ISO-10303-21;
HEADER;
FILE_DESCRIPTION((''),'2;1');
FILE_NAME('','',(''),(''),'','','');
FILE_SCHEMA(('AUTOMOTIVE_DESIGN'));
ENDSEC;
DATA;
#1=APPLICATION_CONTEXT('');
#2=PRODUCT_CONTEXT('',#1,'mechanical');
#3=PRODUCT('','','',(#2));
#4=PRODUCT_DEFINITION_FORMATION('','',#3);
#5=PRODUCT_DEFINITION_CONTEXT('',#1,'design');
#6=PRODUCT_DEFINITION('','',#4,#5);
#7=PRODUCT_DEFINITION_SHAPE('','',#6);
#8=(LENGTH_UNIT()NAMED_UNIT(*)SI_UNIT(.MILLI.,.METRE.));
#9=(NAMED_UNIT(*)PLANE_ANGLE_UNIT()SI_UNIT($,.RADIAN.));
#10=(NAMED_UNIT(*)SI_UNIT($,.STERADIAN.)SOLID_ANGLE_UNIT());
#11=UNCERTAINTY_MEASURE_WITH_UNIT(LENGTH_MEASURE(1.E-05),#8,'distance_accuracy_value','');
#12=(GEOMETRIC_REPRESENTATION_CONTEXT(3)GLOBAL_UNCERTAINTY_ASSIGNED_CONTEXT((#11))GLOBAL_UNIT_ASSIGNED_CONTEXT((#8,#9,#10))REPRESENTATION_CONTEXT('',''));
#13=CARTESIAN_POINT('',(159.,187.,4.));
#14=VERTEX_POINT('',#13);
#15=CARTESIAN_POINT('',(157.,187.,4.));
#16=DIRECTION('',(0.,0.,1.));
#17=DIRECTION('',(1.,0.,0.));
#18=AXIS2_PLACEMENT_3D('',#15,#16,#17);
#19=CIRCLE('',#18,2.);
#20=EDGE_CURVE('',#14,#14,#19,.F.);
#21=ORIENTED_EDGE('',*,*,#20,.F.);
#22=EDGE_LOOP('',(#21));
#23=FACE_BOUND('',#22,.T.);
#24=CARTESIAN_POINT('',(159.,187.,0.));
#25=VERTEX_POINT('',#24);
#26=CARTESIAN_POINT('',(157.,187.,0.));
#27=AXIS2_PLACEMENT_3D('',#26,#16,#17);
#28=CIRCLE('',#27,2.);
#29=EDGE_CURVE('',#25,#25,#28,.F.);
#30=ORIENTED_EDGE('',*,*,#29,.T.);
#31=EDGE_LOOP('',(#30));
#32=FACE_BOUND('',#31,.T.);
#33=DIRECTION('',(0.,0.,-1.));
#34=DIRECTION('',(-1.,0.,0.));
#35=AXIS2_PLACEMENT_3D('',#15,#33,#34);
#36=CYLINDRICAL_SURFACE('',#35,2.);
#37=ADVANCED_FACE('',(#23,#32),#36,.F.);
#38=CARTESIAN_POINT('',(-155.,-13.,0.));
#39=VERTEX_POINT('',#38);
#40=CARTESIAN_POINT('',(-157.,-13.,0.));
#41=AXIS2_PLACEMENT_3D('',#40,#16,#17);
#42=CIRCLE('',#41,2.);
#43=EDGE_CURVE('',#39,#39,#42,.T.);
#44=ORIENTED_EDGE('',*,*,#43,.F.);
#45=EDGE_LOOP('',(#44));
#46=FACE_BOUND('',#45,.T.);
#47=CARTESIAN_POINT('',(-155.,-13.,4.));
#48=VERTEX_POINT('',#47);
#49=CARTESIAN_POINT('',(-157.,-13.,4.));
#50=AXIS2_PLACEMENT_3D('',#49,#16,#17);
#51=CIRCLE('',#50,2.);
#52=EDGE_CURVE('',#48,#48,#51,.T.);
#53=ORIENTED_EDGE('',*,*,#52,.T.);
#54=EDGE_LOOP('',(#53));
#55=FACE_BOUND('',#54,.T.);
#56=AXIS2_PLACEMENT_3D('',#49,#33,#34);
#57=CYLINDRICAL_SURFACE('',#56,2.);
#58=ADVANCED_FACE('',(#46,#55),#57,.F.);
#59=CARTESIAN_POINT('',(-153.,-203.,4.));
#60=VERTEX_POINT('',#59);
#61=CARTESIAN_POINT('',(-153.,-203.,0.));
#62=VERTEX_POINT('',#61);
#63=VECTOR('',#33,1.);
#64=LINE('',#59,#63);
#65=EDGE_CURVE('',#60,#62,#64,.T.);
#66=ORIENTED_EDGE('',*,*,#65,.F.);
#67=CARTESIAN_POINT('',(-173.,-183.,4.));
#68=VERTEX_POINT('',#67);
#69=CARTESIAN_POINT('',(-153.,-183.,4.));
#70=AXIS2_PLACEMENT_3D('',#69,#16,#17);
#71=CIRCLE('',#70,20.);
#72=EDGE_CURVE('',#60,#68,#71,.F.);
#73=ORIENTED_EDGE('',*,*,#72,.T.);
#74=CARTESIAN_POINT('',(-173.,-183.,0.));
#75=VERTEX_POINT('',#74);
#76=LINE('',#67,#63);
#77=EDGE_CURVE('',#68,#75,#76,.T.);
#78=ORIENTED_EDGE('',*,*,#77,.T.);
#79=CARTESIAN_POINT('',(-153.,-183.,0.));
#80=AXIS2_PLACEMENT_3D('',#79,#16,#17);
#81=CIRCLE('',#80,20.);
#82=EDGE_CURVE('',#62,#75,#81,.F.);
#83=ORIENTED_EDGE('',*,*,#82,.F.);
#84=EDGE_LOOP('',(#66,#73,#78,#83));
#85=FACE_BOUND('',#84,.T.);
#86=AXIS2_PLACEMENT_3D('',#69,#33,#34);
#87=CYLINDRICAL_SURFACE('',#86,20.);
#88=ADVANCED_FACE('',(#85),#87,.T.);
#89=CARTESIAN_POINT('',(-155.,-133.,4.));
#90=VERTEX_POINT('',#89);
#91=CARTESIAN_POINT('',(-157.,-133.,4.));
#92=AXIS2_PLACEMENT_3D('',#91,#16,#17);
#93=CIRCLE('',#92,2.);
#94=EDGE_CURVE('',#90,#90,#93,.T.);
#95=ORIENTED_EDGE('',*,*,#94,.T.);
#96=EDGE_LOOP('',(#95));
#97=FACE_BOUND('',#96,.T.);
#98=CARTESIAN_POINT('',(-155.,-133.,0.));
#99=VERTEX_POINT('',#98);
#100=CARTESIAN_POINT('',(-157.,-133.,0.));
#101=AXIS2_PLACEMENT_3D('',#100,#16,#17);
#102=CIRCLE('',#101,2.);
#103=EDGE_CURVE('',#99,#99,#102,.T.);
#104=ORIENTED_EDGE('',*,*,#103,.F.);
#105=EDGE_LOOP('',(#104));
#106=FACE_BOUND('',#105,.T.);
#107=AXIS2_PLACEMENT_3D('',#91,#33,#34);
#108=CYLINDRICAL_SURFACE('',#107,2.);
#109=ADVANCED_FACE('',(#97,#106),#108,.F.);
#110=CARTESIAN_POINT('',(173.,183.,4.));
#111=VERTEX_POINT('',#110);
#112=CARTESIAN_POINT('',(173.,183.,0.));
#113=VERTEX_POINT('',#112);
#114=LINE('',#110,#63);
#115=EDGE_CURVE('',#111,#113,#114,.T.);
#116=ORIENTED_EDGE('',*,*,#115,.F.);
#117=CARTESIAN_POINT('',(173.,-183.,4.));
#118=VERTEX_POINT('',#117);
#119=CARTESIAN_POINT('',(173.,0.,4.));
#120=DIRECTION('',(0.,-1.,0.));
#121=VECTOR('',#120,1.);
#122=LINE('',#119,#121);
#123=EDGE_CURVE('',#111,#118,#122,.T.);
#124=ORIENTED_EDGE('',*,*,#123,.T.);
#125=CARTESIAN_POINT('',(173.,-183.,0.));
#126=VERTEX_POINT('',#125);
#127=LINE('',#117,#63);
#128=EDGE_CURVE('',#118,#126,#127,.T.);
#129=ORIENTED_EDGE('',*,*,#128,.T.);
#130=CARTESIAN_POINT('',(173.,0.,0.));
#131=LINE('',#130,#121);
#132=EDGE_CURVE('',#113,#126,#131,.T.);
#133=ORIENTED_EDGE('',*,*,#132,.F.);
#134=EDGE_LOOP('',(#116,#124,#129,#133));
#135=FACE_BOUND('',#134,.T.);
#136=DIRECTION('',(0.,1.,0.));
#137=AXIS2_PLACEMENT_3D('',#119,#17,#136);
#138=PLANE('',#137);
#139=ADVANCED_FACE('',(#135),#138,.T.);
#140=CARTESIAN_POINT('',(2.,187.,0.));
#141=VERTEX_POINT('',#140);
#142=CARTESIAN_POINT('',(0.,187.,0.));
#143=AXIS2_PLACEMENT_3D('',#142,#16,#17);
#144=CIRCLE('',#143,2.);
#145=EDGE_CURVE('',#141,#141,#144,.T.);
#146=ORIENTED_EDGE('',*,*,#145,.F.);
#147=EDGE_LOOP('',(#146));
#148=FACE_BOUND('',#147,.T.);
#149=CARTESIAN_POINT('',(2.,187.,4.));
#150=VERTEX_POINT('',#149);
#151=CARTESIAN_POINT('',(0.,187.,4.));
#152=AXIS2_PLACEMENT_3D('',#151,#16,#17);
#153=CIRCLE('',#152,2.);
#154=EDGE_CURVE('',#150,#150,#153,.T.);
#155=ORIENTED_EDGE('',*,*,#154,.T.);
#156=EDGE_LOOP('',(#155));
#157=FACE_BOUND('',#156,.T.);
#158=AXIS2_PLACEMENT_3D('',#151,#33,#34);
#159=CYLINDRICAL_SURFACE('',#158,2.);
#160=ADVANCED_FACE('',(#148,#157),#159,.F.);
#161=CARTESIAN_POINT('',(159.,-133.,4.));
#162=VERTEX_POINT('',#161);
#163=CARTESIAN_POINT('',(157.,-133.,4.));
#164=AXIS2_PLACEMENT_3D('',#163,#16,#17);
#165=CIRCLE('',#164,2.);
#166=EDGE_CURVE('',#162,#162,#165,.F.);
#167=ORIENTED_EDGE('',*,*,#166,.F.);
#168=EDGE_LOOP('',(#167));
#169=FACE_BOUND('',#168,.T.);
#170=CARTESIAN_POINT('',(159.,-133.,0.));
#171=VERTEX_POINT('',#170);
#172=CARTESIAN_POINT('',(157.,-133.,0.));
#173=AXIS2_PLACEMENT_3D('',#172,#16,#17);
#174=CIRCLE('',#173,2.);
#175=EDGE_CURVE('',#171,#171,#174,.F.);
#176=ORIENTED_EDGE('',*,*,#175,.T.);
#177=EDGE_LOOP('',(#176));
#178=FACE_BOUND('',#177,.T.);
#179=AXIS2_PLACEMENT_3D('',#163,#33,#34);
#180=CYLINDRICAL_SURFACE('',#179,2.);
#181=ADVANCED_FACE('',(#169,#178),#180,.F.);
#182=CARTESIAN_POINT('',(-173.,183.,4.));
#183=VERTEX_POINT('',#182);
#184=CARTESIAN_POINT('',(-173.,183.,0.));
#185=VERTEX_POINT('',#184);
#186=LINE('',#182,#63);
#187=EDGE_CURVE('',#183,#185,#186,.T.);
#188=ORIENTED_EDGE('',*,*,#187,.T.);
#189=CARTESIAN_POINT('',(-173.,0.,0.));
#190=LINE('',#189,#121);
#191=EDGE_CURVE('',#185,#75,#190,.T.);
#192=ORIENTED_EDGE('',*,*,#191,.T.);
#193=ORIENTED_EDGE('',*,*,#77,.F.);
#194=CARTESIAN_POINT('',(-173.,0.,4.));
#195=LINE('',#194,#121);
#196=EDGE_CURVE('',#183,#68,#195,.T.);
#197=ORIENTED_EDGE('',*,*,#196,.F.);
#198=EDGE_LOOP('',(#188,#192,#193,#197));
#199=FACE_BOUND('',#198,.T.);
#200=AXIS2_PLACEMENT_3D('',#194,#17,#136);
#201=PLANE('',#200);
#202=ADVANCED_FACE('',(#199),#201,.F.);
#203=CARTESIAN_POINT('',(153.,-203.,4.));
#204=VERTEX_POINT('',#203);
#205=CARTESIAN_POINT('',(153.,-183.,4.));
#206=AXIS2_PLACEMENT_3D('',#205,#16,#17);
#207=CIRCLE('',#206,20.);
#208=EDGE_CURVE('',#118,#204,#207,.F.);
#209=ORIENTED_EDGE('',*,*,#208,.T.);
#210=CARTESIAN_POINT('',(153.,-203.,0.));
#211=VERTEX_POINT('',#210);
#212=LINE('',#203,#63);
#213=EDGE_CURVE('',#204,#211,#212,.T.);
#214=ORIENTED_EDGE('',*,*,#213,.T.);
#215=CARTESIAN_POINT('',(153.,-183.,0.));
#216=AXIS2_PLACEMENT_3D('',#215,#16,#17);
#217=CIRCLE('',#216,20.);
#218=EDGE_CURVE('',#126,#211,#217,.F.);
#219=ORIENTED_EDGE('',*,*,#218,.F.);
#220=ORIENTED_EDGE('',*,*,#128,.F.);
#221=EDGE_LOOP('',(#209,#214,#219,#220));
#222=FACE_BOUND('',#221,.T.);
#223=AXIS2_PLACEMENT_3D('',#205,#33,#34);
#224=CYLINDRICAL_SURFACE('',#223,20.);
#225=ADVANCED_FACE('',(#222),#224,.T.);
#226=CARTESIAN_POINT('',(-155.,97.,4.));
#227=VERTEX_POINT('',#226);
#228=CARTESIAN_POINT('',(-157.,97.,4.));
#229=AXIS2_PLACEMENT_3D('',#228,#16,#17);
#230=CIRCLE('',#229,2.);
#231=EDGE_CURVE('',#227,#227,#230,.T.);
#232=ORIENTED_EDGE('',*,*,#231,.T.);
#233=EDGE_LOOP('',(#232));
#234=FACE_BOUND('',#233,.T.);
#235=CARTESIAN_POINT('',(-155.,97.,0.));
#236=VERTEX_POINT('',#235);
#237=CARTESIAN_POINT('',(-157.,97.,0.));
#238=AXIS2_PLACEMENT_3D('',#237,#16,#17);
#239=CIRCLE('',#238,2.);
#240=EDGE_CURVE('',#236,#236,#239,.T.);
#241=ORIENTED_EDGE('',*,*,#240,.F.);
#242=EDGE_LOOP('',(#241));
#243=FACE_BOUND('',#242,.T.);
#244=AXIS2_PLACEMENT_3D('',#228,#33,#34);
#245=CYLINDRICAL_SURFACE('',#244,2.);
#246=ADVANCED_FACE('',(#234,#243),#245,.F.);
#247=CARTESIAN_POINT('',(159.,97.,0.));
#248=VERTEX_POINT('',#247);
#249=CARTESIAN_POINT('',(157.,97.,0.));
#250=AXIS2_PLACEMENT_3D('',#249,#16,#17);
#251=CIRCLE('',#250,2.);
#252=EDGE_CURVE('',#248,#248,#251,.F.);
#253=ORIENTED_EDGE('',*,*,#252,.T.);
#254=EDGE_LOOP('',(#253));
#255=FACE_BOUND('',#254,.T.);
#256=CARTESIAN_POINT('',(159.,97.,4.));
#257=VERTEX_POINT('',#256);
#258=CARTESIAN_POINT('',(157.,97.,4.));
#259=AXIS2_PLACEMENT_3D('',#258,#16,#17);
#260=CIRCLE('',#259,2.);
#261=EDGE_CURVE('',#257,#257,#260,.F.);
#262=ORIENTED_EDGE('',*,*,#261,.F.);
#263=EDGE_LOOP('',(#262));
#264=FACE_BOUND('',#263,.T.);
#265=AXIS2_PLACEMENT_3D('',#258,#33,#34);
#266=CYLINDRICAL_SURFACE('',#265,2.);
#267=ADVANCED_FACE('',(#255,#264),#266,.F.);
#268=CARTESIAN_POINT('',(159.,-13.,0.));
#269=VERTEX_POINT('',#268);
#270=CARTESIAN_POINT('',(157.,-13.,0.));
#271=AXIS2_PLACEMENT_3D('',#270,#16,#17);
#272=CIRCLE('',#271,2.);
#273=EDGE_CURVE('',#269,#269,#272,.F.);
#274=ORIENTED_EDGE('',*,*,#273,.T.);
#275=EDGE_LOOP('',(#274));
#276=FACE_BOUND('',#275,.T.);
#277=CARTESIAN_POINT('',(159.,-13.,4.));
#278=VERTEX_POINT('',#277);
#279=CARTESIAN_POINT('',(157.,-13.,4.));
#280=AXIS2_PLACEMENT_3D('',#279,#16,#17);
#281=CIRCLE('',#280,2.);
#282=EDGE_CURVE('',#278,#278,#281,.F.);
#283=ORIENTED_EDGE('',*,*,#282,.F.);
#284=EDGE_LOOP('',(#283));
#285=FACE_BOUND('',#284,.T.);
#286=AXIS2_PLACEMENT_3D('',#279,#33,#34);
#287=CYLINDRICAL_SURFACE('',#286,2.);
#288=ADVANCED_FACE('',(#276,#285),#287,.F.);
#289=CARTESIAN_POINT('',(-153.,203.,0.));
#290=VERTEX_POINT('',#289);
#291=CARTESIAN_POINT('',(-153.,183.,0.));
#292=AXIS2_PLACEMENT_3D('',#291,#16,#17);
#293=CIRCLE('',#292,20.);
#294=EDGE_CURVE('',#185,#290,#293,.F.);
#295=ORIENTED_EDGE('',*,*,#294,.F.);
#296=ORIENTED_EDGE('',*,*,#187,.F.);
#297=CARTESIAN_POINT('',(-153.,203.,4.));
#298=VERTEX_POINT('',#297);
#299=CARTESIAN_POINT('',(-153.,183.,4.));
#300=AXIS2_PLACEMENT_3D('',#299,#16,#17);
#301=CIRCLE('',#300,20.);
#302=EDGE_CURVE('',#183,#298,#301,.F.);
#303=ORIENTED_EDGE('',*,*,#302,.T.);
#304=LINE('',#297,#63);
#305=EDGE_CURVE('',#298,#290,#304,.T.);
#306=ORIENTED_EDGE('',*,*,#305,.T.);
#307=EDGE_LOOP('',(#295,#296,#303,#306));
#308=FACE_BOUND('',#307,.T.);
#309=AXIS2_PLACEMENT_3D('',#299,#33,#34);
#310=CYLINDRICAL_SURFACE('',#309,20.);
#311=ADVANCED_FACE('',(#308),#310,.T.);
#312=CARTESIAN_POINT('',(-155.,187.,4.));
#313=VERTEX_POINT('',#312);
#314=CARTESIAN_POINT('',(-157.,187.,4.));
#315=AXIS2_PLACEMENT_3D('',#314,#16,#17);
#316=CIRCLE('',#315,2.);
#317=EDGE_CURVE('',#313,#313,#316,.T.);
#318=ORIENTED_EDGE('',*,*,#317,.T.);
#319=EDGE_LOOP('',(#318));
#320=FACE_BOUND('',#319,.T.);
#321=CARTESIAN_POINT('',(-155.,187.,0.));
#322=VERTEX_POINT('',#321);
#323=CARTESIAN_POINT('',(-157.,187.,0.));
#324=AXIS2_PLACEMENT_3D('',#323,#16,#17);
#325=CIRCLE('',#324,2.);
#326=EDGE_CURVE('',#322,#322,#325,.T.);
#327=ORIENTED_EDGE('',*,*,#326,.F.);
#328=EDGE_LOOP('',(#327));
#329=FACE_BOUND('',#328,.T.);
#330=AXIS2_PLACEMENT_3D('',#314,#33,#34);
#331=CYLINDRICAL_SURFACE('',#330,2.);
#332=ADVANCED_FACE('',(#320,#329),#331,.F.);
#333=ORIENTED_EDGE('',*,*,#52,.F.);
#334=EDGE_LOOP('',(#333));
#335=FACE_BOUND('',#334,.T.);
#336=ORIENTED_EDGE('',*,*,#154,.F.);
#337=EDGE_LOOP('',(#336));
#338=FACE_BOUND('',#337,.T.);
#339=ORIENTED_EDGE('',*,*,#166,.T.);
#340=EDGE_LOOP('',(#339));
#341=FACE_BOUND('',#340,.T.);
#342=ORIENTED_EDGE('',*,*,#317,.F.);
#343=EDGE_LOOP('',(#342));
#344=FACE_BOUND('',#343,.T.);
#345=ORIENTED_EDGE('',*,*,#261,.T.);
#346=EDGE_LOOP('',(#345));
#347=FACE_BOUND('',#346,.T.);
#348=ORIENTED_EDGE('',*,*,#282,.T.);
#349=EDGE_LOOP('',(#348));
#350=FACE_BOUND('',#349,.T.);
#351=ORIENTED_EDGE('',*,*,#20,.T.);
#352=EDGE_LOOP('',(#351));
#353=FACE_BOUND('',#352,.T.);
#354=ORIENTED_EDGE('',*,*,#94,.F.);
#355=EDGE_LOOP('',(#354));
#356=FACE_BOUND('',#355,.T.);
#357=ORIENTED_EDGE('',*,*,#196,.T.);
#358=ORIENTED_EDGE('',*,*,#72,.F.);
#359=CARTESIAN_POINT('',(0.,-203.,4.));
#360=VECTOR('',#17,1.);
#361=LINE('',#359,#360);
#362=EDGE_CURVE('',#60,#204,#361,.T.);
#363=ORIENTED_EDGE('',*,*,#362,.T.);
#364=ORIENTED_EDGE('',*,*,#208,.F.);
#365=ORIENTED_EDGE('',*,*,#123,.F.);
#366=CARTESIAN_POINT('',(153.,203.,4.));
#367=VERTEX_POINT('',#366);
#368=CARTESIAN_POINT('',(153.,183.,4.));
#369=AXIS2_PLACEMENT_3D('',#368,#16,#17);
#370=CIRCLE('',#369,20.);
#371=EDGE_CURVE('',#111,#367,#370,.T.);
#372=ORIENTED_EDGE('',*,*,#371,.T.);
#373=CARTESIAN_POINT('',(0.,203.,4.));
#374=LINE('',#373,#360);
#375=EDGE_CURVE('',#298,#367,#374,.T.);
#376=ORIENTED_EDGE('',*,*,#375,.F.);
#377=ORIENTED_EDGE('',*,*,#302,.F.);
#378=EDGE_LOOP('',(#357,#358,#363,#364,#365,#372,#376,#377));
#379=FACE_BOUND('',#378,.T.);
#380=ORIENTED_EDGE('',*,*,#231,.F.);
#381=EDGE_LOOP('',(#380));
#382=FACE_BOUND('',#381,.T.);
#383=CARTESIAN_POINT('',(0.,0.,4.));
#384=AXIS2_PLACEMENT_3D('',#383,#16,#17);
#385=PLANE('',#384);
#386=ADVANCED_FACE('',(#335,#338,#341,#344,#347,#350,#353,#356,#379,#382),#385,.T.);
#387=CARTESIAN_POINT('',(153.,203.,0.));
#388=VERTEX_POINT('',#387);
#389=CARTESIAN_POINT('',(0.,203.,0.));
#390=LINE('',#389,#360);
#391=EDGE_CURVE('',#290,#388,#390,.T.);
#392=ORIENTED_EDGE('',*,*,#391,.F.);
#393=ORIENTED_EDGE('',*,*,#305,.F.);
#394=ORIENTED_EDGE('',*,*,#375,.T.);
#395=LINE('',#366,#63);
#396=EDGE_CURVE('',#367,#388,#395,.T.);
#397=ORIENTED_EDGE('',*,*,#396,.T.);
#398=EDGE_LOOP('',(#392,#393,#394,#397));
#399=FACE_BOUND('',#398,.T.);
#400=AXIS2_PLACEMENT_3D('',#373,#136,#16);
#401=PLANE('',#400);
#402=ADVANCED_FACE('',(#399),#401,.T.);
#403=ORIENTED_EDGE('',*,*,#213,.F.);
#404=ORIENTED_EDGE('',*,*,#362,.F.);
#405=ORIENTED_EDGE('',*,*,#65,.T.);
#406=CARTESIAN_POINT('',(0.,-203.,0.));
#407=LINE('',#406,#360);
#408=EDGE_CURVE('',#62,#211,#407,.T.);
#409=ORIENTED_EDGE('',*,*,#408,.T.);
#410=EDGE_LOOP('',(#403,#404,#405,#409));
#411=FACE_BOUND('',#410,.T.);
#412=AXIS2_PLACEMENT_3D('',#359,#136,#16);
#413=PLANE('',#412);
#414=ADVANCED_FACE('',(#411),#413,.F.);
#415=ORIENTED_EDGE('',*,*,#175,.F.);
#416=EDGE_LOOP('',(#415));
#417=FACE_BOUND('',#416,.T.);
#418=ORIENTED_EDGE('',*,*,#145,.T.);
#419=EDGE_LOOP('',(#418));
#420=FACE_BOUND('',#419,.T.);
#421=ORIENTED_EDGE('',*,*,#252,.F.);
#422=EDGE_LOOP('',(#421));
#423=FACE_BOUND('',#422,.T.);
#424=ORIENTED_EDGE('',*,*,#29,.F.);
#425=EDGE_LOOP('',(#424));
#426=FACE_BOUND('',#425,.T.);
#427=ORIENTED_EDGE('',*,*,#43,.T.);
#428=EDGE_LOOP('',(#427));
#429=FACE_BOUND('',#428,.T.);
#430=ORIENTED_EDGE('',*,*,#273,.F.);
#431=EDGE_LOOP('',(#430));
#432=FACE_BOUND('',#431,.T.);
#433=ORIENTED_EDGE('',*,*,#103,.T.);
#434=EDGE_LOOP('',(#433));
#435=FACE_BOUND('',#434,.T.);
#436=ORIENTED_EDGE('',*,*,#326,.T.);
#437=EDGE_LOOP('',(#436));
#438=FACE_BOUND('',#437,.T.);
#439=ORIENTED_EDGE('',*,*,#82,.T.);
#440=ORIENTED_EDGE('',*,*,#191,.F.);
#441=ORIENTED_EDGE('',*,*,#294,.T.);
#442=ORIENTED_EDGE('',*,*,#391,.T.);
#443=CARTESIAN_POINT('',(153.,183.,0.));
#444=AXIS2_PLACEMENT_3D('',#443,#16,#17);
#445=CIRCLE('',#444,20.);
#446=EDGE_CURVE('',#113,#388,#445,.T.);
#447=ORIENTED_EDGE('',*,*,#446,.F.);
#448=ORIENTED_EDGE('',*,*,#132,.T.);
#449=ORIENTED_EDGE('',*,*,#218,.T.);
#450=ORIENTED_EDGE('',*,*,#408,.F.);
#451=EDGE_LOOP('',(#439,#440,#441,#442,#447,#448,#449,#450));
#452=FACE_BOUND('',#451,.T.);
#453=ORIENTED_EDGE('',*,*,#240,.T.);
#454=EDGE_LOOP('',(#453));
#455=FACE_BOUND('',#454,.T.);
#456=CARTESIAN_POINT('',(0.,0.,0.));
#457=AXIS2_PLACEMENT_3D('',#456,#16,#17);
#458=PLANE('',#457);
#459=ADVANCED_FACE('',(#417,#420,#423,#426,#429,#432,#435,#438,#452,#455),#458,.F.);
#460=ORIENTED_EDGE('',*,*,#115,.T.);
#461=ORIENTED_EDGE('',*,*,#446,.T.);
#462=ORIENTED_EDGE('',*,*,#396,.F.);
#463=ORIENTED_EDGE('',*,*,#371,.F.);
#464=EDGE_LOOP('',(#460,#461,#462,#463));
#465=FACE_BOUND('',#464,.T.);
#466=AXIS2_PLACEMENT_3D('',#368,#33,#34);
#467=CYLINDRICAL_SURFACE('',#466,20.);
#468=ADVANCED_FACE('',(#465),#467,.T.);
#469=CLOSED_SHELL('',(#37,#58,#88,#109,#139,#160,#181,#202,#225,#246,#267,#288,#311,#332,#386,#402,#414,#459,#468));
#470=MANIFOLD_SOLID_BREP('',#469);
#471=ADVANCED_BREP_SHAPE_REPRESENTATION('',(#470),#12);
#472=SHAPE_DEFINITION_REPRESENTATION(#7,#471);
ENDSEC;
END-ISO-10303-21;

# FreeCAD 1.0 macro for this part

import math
import FreeCAD as App
import Part
import Sketcher

doc = App.newDocument("Part")
body = doc.addObject("PartDesign::Body", "Body")

sketch1 = body.newObject("Sketcher::SketchObject", "Sketch")
sketch1.AttachmentSupport = (doc.getObject("XY_Plane"), [""])
sketch1.MapMode = "FlatFace"
sketch1.addGeometry([
    Part.LineSegment(App.Vector(153, 203, 0), App.Vector(-153, 203, 0)),
    Part.ArcOfCircle(Part.Circle(App.Vector(-153, 183, 0), App.Vector(0, 0, 1), 20), math.radians(90), math.radians(180)),
    Part.LineSegment(App.Vector(-173, 183, 0), App.Vector(-173, -183, 0)),
    Part.ArcOfCircle(Part.Circle(App.Vector(-153, -183, 0), App.Vector(0, 0, 1), 20), math.radians(180), math.radians(270)),
    Part.LineSegment(App.Vector(-153, -203, 0), App.Vector(153, -203, 0)),
    Part.ArcOfCircle(Part.Circle(App.Vector(153, -183, 0), App.Vector(0, 0, 1), 20), math.radians(-90), math.radians(0)),
    Part.LineSegment(App.Vector(173, -183, 0), App.Vector(173, 183, 0)),
    Part.ArcOfCircle(Part.Circle(App.Vector(153, 183, 0), App.Vector(0, 0, 1), 20), math.radians(0), math.radians(90)),
    Part.Circle(App.Vector(157, -133, 0), App.Vector(0, 0, 1), 2),
    Part.Circle(App.Vector(157, -13, 0), App.Vector(0, 0, 1), 2),
    Part.Circle(App.Vector(-157, -133, 0), App.Vector(0, 0, 1), 2),
    Part.Circle(App.Vector(-157, -13, 0), App.Vector(0, 0, 1), 2),
    Part.Circle(App.Vector(157, 97, 0), App.Vector(0, 0, 1), 2),
    Part.Circle(App.Vector(157, 187, 0), App.Vector(0, 0, 1), 2),
    Part.Circle(App.Vector(-157, 97, 0), App.Vector(0, 0, 1), 2),
    Part.Circle(App.Vector(0, 187, 0), App.Vector(0, 0, 1), 2),
    Part.Circle(App.Vector(-157, 187, 0), App.Vector(0, 0, 1), 2),
], False)
sketch1.addConstraint([
    Sketcher.Constraint("Tangent", 0, 2, 1, 1),
    Sketcher.Constraint("Tangent", 1, 2, 2, 1),
    Sketcher.Constraint("Tangent", 2, 2, 3, 1),
    Sketcher.Constraint("Tangent", 3, 2, 4, 1),
    Sketcher.Constraint("Tangent", 4, 2, 5, 1),
    Sketcher.Constraint("Tangent", 5, 2, 6, 1),
    Sketcher.Constraint("Tangent", 6, 2, 7, 1),
    Sketcher.Constraint("Tangent", 7, 2, 0, 1),
    Sketcher.Constraint("Horizontal", 0),
    Sketcher.Constraint("Vertical", 2),
    Sketcher.Constraint("Horizontal", 4),
    Sketcher.Constraint("Vertical", 6),
    Sketcher.Constraint("Equal", 1, 3),
    Sketcher.Constraint("Equal", 3, 5),
    Sketcher.Constraint("Equal", 5, 7),
    Sketcher.Constraint("Equal", 8, 9),
    Sketcher.Constraint("Equal", 9, 10),
    Sketcher.Constraint("Equal", 10, 11),
    Sketcher.Constraint("Equal", 11, 12),
    Sketcher.Constraint("Equal", 12, 13),
    Sketcher.Constraint("Equal", 13, 14),
    Sketcher.Constraint("Equal", 14, 15),
    Sketcher.Constraint("Equal", 15, 16),
    Sketcher.Constraint("Symmetric", 1, 3, 5, 3, -1, 1),
    Sketcher.Constraint("Symmetric", 8, 3, 10, 3, -2),
    Sketcher.Constraint("Symmetric", 9, 3, 11, 3, -2),
    Sketcher.Constraint("Symmetric", 12, 3, 14, 3, -2),
    Sketcher.Constraint("Symmetric", 13, 3, 16, 3, -2),
    Sketcher.Constraint("PointOnObject", 15, 3, -2),
    Sketcher.Constraint("Horizontal", 13, 3, 15, 3),
    Sketcher.Constraint("Vertical", 8, 3, 9, 3),
    Sketcher.Constraint("Vertical", 9, 3, 12, 3),
    Sketcher.Constraint("Vertical", 12, 3, 13, 3),
    Sketcher.Constraint("Diameter", 8, 4.0),
    Sketcher.Constraint("Radius", 1, 20.0),
    Sketcher.Constraint("DistanceX", 0, 2, 0, 1, 306.0),
    Sketcher.Constraint("DistanceY", 2, 2, 2, 1, 366.0),
    Sketcher.Constraint("DistanceX", -1, 1, 8, 3, 157.0),
    Sketcher.Constraint("DistanceY", 8, 3, -1, 1, 133.0),
    Sketcher.Constraint("DistanceY", 9, 3, -1, 1, 13.0),
    Sketcher.Constraint("DistanceY", -1, 1, 12, 3, 97.0),
    Sketcher.Constraint("DistanceY", -1, 1, 13, 3, 187.0),
])
pad1 = body.newObject("PartDesign::Pad", "Pad")
pad1.Profile = sketch1
pad1.Length = 4

doc.recompute()
